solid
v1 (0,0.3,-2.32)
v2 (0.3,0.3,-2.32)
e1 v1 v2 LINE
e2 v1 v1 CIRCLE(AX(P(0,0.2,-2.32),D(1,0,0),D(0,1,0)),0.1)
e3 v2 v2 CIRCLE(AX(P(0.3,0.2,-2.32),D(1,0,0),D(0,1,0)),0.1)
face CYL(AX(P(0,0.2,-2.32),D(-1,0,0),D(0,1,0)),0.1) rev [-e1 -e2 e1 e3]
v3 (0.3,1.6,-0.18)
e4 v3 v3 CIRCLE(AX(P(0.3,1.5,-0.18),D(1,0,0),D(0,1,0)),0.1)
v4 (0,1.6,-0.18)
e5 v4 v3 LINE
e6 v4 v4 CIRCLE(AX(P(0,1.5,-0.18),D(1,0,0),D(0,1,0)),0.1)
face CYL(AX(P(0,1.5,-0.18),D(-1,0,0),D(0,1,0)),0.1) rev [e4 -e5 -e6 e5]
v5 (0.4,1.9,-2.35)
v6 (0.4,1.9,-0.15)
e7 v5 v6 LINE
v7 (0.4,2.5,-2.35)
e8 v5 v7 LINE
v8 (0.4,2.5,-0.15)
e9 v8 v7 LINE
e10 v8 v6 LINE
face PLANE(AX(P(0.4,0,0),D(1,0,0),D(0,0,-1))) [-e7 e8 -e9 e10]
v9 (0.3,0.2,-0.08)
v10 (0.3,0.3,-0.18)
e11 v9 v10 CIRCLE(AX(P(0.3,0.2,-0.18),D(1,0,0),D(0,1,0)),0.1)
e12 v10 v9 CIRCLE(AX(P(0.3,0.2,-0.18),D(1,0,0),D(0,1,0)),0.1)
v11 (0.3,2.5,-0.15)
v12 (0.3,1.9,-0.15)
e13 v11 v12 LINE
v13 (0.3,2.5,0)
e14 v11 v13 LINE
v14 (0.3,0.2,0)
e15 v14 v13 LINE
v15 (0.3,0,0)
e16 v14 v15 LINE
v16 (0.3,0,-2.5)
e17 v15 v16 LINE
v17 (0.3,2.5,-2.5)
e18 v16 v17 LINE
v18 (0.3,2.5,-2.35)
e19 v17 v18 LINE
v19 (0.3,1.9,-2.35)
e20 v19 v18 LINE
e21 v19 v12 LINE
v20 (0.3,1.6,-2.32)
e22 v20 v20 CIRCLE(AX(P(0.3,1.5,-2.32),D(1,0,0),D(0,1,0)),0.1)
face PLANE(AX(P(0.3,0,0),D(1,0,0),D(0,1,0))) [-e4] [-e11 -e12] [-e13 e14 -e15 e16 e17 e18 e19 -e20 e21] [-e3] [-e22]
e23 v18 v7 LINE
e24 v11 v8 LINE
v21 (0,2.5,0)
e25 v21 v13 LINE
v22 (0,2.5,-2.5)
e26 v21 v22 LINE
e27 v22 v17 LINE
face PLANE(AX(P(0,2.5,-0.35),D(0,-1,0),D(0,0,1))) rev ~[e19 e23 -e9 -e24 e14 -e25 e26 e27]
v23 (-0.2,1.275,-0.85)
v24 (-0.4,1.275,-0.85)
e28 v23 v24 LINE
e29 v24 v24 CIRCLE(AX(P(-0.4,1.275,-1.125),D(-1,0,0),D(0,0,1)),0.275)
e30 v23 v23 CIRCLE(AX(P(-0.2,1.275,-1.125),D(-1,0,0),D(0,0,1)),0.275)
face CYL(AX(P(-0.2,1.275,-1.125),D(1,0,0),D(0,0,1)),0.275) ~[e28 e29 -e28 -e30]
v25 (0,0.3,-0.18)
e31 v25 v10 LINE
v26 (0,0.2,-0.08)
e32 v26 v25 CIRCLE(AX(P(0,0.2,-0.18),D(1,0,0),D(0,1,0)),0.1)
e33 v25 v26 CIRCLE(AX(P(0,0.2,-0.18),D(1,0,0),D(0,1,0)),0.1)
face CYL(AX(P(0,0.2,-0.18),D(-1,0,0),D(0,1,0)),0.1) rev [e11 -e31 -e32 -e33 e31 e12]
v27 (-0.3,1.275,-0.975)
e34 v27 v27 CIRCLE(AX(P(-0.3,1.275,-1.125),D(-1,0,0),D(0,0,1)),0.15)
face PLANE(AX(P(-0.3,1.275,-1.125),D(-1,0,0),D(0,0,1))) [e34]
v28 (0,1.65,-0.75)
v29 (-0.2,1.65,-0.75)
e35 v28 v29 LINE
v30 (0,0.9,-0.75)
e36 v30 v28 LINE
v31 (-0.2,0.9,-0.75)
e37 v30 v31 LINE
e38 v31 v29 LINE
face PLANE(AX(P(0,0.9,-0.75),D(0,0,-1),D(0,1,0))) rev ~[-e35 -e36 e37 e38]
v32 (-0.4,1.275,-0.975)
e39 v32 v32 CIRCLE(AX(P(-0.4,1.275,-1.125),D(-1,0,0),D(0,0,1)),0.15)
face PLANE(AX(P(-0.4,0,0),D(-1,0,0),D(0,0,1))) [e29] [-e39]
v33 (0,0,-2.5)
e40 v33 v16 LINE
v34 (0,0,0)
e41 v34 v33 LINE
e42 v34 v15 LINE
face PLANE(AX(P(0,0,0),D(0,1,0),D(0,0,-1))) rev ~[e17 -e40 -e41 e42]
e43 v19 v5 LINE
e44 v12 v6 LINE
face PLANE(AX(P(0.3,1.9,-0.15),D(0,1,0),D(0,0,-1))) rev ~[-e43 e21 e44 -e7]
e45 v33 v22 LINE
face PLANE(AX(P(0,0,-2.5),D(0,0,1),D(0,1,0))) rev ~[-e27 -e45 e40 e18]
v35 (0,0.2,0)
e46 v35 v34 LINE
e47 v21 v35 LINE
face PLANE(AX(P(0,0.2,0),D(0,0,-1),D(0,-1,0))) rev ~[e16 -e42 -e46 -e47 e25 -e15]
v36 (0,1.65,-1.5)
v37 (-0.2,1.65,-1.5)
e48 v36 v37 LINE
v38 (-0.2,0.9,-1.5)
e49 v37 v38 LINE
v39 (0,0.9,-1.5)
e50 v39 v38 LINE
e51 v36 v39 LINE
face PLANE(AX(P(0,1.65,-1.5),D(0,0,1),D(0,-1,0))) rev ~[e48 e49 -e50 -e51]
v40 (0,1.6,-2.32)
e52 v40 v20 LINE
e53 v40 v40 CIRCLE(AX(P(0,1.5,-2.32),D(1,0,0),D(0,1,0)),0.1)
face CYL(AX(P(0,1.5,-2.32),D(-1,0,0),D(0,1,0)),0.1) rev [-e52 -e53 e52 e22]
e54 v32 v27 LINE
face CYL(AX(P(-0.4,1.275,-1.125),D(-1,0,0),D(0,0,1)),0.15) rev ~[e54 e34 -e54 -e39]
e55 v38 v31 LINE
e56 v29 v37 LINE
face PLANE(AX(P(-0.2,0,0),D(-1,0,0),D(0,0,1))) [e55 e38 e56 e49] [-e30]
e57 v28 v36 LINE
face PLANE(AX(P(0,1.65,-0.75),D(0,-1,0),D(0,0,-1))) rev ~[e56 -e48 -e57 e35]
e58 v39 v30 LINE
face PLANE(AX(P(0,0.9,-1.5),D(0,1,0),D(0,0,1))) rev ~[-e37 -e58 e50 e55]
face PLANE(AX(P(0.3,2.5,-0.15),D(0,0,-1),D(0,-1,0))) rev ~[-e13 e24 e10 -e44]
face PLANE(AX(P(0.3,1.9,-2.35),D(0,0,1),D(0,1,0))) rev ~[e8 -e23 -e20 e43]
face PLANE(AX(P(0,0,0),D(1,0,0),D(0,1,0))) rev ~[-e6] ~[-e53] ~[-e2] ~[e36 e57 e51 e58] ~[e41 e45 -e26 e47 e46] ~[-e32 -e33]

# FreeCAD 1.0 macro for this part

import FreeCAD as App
import Part
import Sketcher

V = App.Vector
Q = App.Units.Quantity


def add_polygon(sketch, points):
    """Adds a closed chain of lines whose ends are joined by coincident constraints."""
    first, n = sketch.GeometryCount, len(points)
    for a, b in zip(points, points[1:] + points[:1]):
        sketch.addGeometry(Part.LineSegment(App.Vector(*a, 0), App.Vector(*b, 0)), False)
    for i in range(n):
        sketch.addConstraint(Sketcher.Constraint("Coincident", first + i, 2, first + (i + 1) % n, 1))

doc = App.newDocument("Part")
body = doc.addObject("PartDesign::Body", "Body")

# Sketch on YZ plane
sketch1 = doc.addObject("Sketcher::SketchObject", "Sketch")
body.addObject(sketch1)
sketch1.AttachmentSupport = (doc.YZ_Plane, [""])
sketch1.MapMode = "FlatFace"
add_polygon(sketch1, [(0.2, 0), (0, 0), (0, -2.5), (2.5, -2.5), (2.5, 0)])  # lines 0-4
sketch1.addGeometry(Part.Circle(V(0.2, -2.32, 0), V(0, 0, 1), 0.1), False)  # 5
sketch1.addGeometry(Part.Circle(V(1.5, -2.32, 0), V(0, 0, 1), 0.1), False)  # 6
sketch1.addGeometry(Part.Circle(V(0.2, -0.18, 0), V(0, 0, 1), 0.1), False)  # 7
sketch1.addGeometry(Part.Circle(V(1.5, -0.18, 0), V(0, 0, 1), 0.1), False)  # 8
sketch1.addConstraint([
    Sketcher.Constraint("Horizontal", 0),
    Sketcher.Constraint("Vertical", 1),
    Sketcher.Constraint("Horizontal", 2),
    Sketcher.Constraint("Vertical", 3),
    Sketcher.Constraint("Horizontal", 4),
    Sketcher.Constraint("Coincident", 0, 2, -1, 1),
    Sketcher.Constraint("Equal", 5, 6),
    Sketcher.Constraint("Equal", 6, 7),
    Sketcher.Constraint("Equal", 7, 8),
    Sketcher.Constraint("Horizontal", 5, 3, 6, 3),
    Sketcher.Constraint("Horizontal", 7, 3, 8, 3),
    Sketcher.Constraint("Vertical", 5, 3, 7, 3),
    Sketcher.Constraint("Vertical", 6, 3, 8, 3),
    Sketcher.Constraint("Vertical", 7, 3, 4, 2),
    Sketcher.Constraint("Equal", 2, 1),
    Sketcher.Constraint("Diameter", 5, Q("0.2 mm")),
    Sketcher.Constraint("DistanceX", 0, 2, 0, 1, Q("0.2 mm")),
    Sketcher.Constraint("DistanceX", 2, 1, 2, 2, Q("2.5 mm")),
    Sketcher.Constraint("DistanceX", -1, 1, 6, 3, Q("1.5 mm")),
    Sketcher.Constraint("DistanceY", 7, 3, -1, 1, Q("0.18 mm")),
    Sketcher.Constraint("DistanceY", 1, 2, 5, 3, Q("0.18 mm")),
])
pad1 = doc.addObject("PartDesign::Pad", "Pad")
body.addObject(pad1)
pad1.Profile = sketch1
pad1.Length = 0.3

# Sketch on YZ plane
sketch2 = doc.addObject("Sketcher::SketchObject", "Sketch001")
body.addObject(sketch2)
sketch2.AttachmentSupport = (doc.YZ_Plane, [""])
sketch2.MapMode = "FlatFace"
sketch2.AttachmentOffset = App.Placement(V(0, 0, 0.3), App.Rotation())
add_polygon(sketch2, [(1.9, -2.35), (2.5, -2.35), (2.5, -0.15), (1.9, -0.15)])  # lines 0-3
sketch2.addConstraint([
    Sketcher.Constraint("Horizontal", 0),
    Sketcher.Constraint("Vertical", 1),
    Sketcher.Constraint("Horizontal", 2),
    Sketcher.Constraint("Vertical", 3),
    Sketcher.Constraint("DistanceX", 0, 1, 0, 2, Q("0.6 mm")),
    Sketcher.Constraint("DistanceX", -1, 1, 0, 2, Q("2.5 mm")),
    Sketcher.Constraint("DistanceY", 1, 1, 1, 2, Q("2.2 mm")),
    Sketcher.Constraint("DistanceY", 0, 2, -1, 1, Q("2.35 mm")),
])
pad2 = doc.addObject("PartDesign::Pad", "Pad001")
body.addObject(pad2)
pad2.Profile = sketch2
pad2.Length = 0.1

# Sketch on YZ plane
sketch3 = doc.addObject("Sketcher::SketchObject", "Sketch002")
body.addObject(sketch3)
sketch3.AttachmentSupport = (doc.YZ_Plane, [""])
sketch3.MapMode = "FlatFace"
add_polygon(sketch3, [(1.65, -1.5), (0.9, -1.5), (0.9, -0.75), (1.65, -0.75)])  # lines 0-3
sketch3.addConstraint([
    Sketcher.Constraint("Horizontal", 0),
    Sketcher.Constraint("Vertical", 1),
    Sketcher.Constraint("Horizontal", 2),
    Sketcher.Constraint("Vertical", 3),
    Sketcher.Constraint("Equal", 2, 1),
    Sketcher.Constraint("DistanceX", 0, 2, 0, 1, Q("0.75 mm")),
    Sketcher.Constraint("DistanceX", -1, 1, 0, 2, Q("0.9 mm")),
    Sketcher.Constraint("DistanceY", 1, 2, -1, 1, Q("0.75 mm")),
])
pad3 = doc.addObject("PartDesign::Pad", "Pad002")
body.addObject(pad3)
pad3.Profile = sketch3
pad3.Length = 0.2
pad3.Reversed = True

# Sketch on YZ plane
sketch4 = doc.addObject("Sketcher::SketchObject", "Sketch003")
body.addObject(sketch4)
sketch4.AttachmentSupport = (doc.YZ_Plane, [""])
sketch4.MapMode = "FlatFace"
sketch4.AttachmentOffset = App.Placement(V(0, 0, -0.2), App.Rotation())
sketch4.addGeometry(Part.Circle(V(1.275, -1.125, 0), V(0, 0, 1), 0.275), False)
sketch4.addConstraint([
    Sketcher.Constraint("Diameter", 0, Q("0.55 mm")),
    Sketcher.Constraint("DistanceX", -1, 1, 0, 3, Q("1.275 mm")),
    Sketcher.Constraint("DistanceY", 0, 3, -1, 1, Q("1.125 mm")),
])
pad4 = doc.addObject("PartDesign::Pad", "Pad003")
body.addObject(pad4)
pad4.Profile = sketch4
pad4.Length = 0.2
pad4.Reversed = True

# Sketch on YZ plane
sketch5 = doc.addObject("Sketcher::SketchObject", "Sketch004")
body.addObject(sketch5)
sketch5.AttachmentSupport = (doc.YZ_Plane, [""])
sketch5.MapMode = "FlatFace"
sketch5.AttachmentOffset = App.Placement(V(0, 0, -0.4), App.Rotation())
sketch5.addGeometry(Part.Circle(V(1.275, -1.125, 0), V(0, 0, 1), 0.15), False)
sketch5.addConstraint([
    Sketcher.Constraint("Diameter", 0, Q("0.3 mm")),
    Sketcher.Constraint("DistanceX", -1, 1, 0, 3, Q("1.275 mm")),
    Sketcher.Constraint("DistanceY", 0, 3, -1, 1, Q("1.125 mm")),
])
pocket1 = doc.addObject("PartDesign::Pocket", "Pocket")
body.addObject(pocket1)
pocket1.Profile = sketch5
pocket1.Length = 0.1
pocket1.Reversed = True

doc.recompute()
